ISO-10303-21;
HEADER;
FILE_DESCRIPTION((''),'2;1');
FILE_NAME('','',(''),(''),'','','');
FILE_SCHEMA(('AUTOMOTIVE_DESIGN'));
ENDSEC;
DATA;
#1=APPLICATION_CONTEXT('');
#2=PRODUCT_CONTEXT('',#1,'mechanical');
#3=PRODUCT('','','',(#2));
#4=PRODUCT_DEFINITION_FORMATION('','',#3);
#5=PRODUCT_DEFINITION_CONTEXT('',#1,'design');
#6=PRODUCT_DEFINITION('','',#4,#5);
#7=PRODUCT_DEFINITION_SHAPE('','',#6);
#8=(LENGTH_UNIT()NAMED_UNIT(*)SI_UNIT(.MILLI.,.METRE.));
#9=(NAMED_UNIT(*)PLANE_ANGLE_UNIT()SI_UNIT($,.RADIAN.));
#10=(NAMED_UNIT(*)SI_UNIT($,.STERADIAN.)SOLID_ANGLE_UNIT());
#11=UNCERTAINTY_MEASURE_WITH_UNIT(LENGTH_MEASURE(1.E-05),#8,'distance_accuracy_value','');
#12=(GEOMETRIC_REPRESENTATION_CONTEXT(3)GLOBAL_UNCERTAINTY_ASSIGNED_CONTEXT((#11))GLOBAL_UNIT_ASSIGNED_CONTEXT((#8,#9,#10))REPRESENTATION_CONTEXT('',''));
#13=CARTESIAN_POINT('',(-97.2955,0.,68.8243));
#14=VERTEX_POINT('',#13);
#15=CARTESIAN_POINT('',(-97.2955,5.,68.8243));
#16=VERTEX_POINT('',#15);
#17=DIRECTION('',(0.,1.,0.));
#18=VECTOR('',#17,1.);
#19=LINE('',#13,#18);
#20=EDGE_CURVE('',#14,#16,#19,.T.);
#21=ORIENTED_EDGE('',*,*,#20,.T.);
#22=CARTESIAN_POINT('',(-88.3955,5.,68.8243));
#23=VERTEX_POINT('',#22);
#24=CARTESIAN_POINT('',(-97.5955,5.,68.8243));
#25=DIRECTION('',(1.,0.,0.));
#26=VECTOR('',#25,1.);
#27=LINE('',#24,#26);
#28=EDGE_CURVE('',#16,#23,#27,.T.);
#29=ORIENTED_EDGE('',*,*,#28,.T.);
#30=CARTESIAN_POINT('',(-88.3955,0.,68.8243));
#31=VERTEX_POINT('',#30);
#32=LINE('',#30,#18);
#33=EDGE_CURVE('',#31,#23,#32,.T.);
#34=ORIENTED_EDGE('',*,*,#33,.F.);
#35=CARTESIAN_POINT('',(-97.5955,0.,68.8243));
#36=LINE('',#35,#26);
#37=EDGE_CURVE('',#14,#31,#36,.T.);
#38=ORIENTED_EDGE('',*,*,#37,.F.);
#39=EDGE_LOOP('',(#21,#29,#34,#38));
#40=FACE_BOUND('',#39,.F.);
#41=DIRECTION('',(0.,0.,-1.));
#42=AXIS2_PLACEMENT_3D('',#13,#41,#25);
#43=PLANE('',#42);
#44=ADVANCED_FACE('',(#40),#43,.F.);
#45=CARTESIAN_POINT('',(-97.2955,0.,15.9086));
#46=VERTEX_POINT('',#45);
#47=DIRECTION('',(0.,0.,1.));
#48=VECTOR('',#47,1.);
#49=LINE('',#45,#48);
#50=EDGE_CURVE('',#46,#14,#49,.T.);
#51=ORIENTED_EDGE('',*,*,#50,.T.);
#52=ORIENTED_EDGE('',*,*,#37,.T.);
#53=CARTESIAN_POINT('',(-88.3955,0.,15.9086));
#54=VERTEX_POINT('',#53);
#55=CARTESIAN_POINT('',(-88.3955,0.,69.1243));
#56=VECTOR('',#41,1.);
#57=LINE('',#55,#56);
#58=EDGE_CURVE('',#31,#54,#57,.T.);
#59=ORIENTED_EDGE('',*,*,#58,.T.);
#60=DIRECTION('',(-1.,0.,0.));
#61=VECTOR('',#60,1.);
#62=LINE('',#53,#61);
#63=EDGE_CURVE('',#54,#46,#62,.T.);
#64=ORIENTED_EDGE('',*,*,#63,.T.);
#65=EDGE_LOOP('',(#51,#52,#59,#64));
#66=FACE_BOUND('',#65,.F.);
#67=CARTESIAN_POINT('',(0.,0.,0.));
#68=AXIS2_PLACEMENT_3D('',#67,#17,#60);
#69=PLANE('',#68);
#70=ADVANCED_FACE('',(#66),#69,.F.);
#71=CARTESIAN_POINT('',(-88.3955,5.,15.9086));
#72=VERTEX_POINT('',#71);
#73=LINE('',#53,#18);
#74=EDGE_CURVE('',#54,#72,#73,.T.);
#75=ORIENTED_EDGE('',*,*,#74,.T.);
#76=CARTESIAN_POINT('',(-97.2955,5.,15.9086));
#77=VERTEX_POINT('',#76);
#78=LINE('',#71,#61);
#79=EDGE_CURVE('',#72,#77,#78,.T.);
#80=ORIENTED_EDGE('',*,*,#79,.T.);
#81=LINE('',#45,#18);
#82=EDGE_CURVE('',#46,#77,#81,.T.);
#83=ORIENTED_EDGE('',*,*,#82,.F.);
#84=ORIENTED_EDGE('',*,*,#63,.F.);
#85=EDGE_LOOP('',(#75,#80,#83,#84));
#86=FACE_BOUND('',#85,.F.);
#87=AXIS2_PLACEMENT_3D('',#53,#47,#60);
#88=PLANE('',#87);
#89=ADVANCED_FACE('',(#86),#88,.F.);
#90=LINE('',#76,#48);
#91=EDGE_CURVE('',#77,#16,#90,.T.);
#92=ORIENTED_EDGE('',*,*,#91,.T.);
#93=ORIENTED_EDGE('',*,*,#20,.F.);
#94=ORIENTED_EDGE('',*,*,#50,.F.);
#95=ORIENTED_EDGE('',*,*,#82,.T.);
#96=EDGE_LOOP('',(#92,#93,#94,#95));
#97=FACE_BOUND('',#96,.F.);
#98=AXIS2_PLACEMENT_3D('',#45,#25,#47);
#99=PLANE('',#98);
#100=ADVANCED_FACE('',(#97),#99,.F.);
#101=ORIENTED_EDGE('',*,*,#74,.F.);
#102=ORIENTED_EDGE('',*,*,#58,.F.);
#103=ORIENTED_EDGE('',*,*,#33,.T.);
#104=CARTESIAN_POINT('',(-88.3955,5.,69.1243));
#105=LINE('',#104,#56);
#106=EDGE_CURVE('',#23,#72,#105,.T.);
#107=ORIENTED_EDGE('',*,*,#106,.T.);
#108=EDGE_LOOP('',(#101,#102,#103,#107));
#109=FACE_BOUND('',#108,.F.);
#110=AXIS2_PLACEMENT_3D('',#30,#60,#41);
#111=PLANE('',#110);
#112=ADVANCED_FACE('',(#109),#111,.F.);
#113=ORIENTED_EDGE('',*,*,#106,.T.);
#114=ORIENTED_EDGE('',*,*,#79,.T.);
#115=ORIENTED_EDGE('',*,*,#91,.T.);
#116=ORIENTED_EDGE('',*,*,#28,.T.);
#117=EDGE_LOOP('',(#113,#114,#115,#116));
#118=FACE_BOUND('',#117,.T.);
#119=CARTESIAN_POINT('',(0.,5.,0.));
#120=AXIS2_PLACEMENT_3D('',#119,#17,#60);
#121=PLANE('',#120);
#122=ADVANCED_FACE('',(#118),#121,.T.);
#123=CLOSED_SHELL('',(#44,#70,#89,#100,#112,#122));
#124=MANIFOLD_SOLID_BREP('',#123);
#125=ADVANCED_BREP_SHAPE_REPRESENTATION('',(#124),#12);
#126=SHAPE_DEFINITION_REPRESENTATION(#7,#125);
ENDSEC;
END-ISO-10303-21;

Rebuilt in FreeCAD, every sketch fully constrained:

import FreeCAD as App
import Part
import Sketcher
from FreeCAD import Vector


def add_polygon(sketch, points):
    """Adds a closed chain of lines whose ends are joined by coincident constraints."""
    first, n = sketch.GeometryCount, len(points)
    for a, b in zip(points, points[1:] + points[:1]):
        sketch.addGeometry(Part.LineSegment(App.Vector(*a, 0), App.Vector(*b, 0)), False)
    for i in range(n):
        sketch.addConstraint(Sketcher.Constraint("Coincident", first + i, 2, first + (i + 1) % n, 1))

doc = App.newDocument("Part")
body = doc.addObject("PartDesign::Body", "Body")

# Sketch on XZ plane
sketch1 = doc.addObject("Sketcher::SketchObject", "Sketch")
body.addObject(sketch1)
sketch1.AttachmentSupport = (doc.XZ_Plane, [""])
sketch1.MapMode = "FlatFace"
add_polygon(sketch1, [(-97, 69), (-88, 69), (-88, 16), (-97, 16)])  # lines 0-3
sketch1.addConstraint(Sketcher.Constraint("Horizontal", 0))
sketch1.addConstraint(Sketcher.Constraint("Vertical", 1))
sketch1.addConstraint(Sketcher.Constraint("Horizontal", 2))
sketch1.addConstraint(Sketcher.Constraint("Vertical", 3))
sketch1.addConstraint(Sketcher.Constraint("DistanceX", 0, 1, 0, 2, 8.9))
sketch1.addConstraint(Sketcher.Constraint("DistanceY", 1, 2, 1, 1, 52.9157))
sketch1.addConstraint(Sketcher.Constraint("DistanceX", 0, 2, -1, 1, 88.3955))
sketch1.addConstraint(Sketcher.Constraint("DistanceY", -1, 1, 0, 2, 68.8243))
pad1 = doc.addObject("PartDesign::Pad", "Pad")
body.addObject(pad1)
pad1.Profile = sketch1
pad1.Length = 5
pad1.Reversed = True

doc.recompute()
